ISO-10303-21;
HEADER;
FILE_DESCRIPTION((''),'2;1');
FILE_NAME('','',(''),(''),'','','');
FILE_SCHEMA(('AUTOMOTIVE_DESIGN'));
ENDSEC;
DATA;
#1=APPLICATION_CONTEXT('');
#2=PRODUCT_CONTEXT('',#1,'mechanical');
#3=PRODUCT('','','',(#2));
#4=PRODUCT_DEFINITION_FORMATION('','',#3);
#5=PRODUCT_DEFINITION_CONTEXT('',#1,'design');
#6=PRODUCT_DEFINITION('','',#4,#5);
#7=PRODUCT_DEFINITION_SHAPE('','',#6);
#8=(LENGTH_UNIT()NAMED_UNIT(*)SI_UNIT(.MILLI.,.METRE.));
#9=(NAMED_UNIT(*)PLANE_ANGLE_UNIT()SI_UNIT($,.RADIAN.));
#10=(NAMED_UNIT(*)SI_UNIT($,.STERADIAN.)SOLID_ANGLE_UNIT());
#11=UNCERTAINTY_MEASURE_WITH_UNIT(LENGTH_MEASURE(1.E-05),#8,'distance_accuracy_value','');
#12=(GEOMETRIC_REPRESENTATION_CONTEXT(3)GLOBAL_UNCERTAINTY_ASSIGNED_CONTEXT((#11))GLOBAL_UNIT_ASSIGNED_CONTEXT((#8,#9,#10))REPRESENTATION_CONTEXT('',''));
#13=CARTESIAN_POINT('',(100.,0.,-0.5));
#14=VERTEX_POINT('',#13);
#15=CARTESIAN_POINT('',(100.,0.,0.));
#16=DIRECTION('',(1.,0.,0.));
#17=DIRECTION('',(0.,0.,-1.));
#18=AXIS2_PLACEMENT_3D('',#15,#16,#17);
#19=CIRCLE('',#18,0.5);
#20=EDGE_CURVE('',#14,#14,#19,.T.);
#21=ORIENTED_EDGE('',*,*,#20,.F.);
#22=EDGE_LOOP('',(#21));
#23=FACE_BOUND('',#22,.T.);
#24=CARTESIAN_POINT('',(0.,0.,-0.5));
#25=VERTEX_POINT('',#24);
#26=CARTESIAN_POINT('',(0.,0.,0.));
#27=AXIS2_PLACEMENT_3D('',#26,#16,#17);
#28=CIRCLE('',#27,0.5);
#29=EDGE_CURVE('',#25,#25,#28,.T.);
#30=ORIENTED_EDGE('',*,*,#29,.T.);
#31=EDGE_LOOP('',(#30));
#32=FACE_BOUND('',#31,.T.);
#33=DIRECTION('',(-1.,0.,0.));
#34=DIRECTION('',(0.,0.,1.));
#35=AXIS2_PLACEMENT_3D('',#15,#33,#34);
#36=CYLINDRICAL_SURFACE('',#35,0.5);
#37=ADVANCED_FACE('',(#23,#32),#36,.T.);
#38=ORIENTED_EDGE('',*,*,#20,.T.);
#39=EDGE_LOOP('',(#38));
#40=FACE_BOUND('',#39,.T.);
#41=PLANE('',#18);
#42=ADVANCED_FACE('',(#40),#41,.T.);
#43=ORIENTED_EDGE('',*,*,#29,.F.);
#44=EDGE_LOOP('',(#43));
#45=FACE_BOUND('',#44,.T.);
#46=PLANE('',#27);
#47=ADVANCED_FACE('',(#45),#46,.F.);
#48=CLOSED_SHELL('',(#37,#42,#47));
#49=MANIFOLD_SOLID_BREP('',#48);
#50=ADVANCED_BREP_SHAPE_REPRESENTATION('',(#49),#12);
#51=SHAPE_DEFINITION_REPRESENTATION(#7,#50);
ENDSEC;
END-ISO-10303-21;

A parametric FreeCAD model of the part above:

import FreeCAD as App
import Part
import Sketcher

V = App.Vector
Q = App.Units.Quantity

doc = App.newDocument("Part")
body = doc.addObject("PartDesign::Body", "Body")

# Sketch on YZ plane
sketch1 = doc.addObject("Sketcher::SketchObject", "Sketch")
body.addObject(sketch1)
sketch1.AttachmentSupport = (doc.YZ_Plane, [""])
sketch1.MapMode = "FlatFace"
sketch1.addGeometry(Part.Circle(V(0, 0, 0), V(0, 0, 1), 0.5), False)
sketch1.addConstraint(Sketcher.Constraint("Coincident", 0, 3, -1, 1))
sketch1.addConstraint(Sketcher.Constraint("Diameter", 0, Q("1 mm")))
pad1 = doc.addObject("PartDesign::Pad", "Pad")
body.addObject(pad1)
pad1.Profile = sketch1
pad1.Length = 100

doc.recompute()
